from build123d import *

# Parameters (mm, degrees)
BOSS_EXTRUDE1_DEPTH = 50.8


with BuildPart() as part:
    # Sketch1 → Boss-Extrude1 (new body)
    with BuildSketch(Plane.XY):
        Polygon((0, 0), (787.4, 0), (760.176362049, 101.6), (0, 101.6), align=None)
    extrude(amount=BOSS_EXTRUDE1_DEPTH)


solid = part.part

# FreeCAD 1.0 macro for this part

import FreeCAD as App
import Part
import Sketcher
from FreeCAD import Vector
Q = App.Units.Quantity


def add_polygon(sketch, points):
    """Adds a closed chain of lines whose ends are joined by coincident constraints."""
    first, n = sketch.GeometryCount, len(points)
    for a, b in zip(points, points[1:] + points[:1]):
        sketch.addGeometry(Part.LineSegment(App.Vector(*a, 0), App.Vector(*b, 0)), False)
    for i in range(n):
        sketch.addConstraint(Sketcher.Constraint("Coincident", first + i, 2, first + (i + 1) % n, 1))

doc = App.newDocument("Part")
body = doc.addObject("PartDesign::Body", "Body")

sketch1 = body.newObject("Sketcher::SketchObject", "Sketch")
sketch1.AttachmentSupport = (doc.getObject("XY_Plane"), [""])
sketch1.MapMode = "FlatFace"
add_polygon(sketch1, [(0, 0), (787, 0), (760, 102), (0, 102)])
sketch1.addConstraint([
    Sketcher.Constraint("Horizontal", 0),
    Sketcher.Constraint("Horizontal", 2),
    Sketcher.Constraint("Vertical", 3),
    Sketcher.Constraint("Coincident", 3, 2, -1, 1),
    Sketcher.Constraint("DistanceX", 0, 1, 0, 2, Q("31 in")),
    Sketcher.Constraint("DistanceY", 3, 2, 3, 1, Q("4 in")),
    Sketcher.Constraint("Angle", 1, Q("105 deg")),
])
pad1 = body.newObject("PartDesign::Pad", "Pad")
pad1.Profile = sketch1
pad1.Length = Q("2 in")

doc.recompute()
